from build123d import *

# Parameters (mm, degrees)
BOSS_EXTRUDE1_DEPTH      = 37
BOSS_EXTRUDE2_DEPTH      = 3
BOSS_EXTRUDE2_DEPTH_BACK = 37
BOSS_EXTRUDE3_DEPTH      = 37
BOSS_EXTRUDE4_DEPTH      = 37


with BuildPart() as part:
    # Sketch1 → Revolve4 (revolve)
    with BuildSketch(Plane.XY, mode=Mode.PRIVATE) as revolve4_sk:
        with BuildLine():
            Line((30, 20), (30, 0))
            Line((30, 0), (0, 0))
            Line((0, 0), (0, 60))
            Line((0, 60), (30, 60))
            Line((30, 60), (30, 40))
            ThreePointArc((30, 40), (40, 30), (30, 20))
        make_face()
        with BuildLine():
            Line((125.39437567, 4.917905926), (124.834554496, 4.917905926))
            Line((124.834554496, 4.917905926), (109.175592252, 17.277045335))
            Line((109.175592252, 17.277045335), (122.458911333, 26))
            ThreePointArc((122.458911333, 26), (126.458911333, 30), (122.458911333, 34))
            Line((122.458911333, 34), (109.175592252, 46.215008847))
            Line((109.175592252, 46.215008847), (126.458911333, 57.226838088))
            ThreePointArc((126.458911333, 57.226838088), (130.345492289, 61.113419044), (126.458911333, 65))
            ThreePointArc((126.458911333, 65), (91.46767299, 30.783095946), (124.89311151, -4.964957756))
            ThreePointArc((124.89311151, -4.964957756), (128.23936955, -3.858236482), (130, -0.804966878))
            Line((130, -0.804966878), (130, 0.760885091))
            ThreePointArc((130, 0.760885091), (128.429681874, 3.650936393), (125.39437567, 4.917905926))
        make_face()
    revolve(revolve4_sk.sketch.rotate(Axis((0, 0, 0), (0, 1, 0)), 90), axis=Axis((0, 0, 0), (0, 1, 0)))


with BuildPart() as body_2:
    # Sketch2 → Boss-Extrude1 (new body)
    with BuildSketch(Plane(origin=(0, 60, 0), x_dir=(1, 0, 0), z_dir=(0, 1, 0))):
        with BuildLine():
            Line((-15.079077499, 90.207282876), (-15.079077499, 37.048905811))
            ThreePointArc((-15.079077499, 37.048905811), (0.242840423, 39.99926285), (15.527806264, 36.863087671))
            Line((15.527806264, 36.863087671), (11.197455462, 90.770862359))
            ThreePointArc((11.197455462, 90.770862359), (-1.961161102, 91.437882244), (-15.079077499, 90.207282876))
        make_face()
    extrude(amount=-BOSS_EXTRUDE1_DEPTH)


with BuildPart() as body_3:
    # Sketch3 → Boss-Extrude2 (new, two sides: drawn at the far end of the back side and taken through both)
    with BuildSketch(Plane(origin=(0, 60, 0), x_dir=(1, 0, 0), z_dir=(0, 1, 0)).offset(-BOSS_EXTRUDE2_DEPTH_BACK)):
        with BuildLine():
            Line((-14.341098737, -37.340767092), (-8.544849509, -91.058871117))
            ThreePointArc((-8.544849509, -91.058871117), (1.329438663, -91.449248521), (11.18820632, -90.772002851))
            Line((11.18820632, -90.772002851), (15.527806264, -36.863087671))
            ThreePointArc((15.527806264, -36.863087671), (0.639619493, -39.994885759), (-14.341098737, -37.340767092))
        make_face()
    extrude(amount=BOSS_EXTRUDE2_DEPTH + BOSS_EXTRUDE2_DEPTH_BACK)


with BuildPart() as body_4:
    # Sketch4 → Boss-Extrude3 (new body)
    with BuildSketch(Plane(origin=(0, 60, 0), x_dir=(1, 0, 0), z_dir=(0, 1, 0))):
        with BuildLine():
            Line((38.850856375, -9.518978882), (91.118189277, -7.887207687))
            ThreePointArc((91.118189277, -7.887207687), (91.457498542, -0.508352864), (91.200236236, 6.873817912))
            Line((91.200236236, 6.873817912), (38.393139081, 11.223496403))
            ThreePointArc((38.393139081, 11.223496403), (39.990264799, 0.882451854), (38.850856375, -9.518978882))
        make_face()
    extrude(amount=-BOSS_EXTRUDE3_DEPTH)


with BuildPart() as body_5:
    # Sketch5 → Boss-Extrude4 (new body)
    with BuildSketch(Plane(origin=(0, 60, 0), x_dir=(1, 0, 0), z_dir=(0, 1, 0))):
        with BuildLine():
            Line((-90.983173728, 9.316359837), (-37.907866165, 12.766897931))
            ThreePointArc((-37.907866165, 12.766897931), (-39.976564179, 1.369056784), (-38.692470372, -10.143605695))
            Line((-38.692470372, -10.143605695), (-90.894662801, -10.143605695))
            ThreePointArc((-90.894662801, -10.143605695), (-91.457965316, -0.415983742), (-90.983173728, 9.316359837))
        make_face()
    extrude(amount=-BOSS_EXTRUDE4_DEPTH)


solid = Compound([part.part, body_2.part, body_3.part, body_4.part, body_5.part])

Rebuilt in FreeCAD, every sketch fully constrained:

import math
import FreeCAD as App
import Part
import Sketcher
Q = App.Units.Quantity

doc = App.newDocument("Part")
body = doc.addObject("PartDesign::Body", "Body")
body.AllowCompound = True

# Sketch on XY plane
sketch1 = doc.addObject("Sketcher::SketchObject", "Sketch")
body.addObject(sketch1)
sketch1.AttachmentSupport = (doc.XY_Plane, [""])
sketch1.MapMode = "FlatFace"
sketch1.addGeometry([
    Part.LineSegment(App.Vector(30, 0, 0), App.Vector(30, 20, 0)),  # 0
    Part.ArcOfCircle(Part.Circle(App.Vector(30, 30, 0), App.Vector(0, 0, 1), 10), math.radians(-90), math.radians(90)),  # 1
    Part.LineSegment(App.Vector(30, 40, 0), App.Vector(30, 60, 0)),  # 2
    Part.LineSegment(App.Vector(30, 60, 0), App.Vector(0, 60, 0)),  # 3
    Part.LineSegment(App.Vector(0, 60, 0), App.Vector(0, 0, 0)),  # 4
    Part.LineSegment(App.Vector(0, 0, 0), App.Vector(30, 0, 0)),  # 5
    Part.LineSegment(App.Vector(125.394376, 4.917906, 0), App.Vector(124.834554, 4.917906, 0)),  # 6
    Part.LineSegment(App.Vector(124.834554, 4.917906, 0), App.Vector(109.175592, 17.277045, 0)),  # 7
    Part.LineSegment(App.Vector(109.175592, 17.277045, 0), App.Vector(122.458911, 26, 0)),  # 8
    Part.ArcOfCircle(Part.Circle(App.Vector(122.458911, 30, 0), App.Vector(0, 0, 1), 4), math.radians(-90), math.radians(90)),  # 9
    Part.LineSegment(App.Vector(122.458911, 34, 0), App.Vector(109.175592, 46.215009, 0)),  # 10
    Part.LineSegment(App.Vector(109.175592, 46.215009, 0), App.Vector(126.458911, 57.226838, 0)),  # 11
    Part.ArcOfCircle(Part.Circle(App.Vector(126.458911, 61.113419, 0), App.Vector(0, 0, 1), 3.886581), math.radians(-90), math.radians(90)),  # 12
    Part.ArcOfCircle(Part.Circle(App.Vector(126.458911, 30, 0), App.Vector(0, 0, 1), 35), math.radians(90), math.radians(267.435895)),  # 13
    Part.ArcOfCircle(Part.Circle(App.Vector(125.114465, -0.022041, 0), App.Vector(0, 0, 1), 4.947871), math.radians(-92.564105), math.radians(-9.10446)),  # 14
    Part.LineSegment(App.Vector(130, -0.804967, 0), App.Vector(130, 0.760885, 0)),  # 15
    Part.ArcOfCircle(Part.Circle(App.Vector(125.114465, -0.022041, 0), App.Vector(0, 0, 1), 4.947871), math.radians(9.10446), math.radians(86.756936)),  # 16
], False)
sketch1.addConstraint([
    Sketcher.Constraint("Coincident", 0, 2, 1, 1),
    Sketcher.Constraint("Coincident", 1, 2, 2, 1),
    Sketcher.Constraint("Coincident", 2, 2, 3, 1),
    Sketcher.Constraint("Coincident", 3, 2, 4, 1),
    Sketcher.Constraint("Coincident", 4, 2, 5, 1),
    Sketcher.Constraint("Coincident", 5, 2, 0, 1),
    Sketcher.Constraint("Coincident", 6, 2, 7, 1),
    Sketcher.Constraint("Coincident", 7, 2, 8, 1),
    Sketcher.Constraint("Coincident", 8, 2, 9, 1),
    Sketcher.Constraint("Coincident", 9, 2, 10, 1),
    Sketcher.Constraint("Coincident", 10, 2, 11, 1),
    Sketcher.Constraint("Coincident", 11, 2, 12, 1),
    Sketcher.Constraint("Tangent", 12, 2, 13, 1),
    Sketcher.Constraint("Tangent", 13, 2, 14, 1),
    Sketcher.Constraint("Coincident", 14, 2, 15, 1),
    Sketcher.Constraint("Coincident", 15, 2, 16, 1),
    Sketcher.Constraint("Coincident", 16, 2, 6, 1),
    Sketcher.Constraint("Vertical", 0),
    Sketcher.Constraint("Vertical", 2),
    Sketcher.Constraint("Horizontal", 3),
    Sketcher.Constraint("Vertical", 4),
    Sketcher.Constraint("Horizontal", 5),
    Sketcher.Constraint("Horizontal", 6),
    Sketcher.Constraint("Vertical", 15),
    Sketcher.Constraint("Coincident", 4, 2, -1, 1),
    Sketcher.Constraint("Coincident", 16, 3, 14, 3),
    Sketcher.Constraint("Equal", 14, 16),
    Sketcher.Constraint("Horizontal", 1, 3, 9, 3),
    Sketcher.Constraint("Horizontal", 9, 3, 13, 3),
    Sketcher.Constraint("Vertical", 12, 3, 13, 3),
    Sketcher.Constraint("Vertical", 1, 3, 0, 2),
    Sketcher.Constraint("Vertical", 0, 2, 1, 2),
    Sketcher.Constraint("Vertical", 9, 3, 8, 2),
    Sketcher.Constraint("Vertical", 8, 2, 9, 2),
    Sketcher.Constraint("Vertical", 7, 2, 10, 2),
    Sketcher.Constraint("Vertical", 13, 3, 11, 2),
    Sketcher.Constraint("Equal", 0, 2),
    Sketcher.Constraint("Radius", 1, Q("10 mm")),
    Sketcher.Constraint("Radius", 9, Q("4 mm")),
    Sketcher.Constraint("Radius", 13, Q("35 mm")),
    Sketcher.Constraint("DistanceX", 3, 2, 3, 1, Q("30 mm")),
    Sketcher.Constraint("DistanceY", 0, 1, 0, 2, Q("20 mm")),
    Sketcher.Constraint("DistanceX", -1, 1, 14, 2, Q("130 mm")),
    Sketcher.Constraint("DistanceX", 9, 3, 12, 3, Q("4 mm")),
    Sketcher.Constraint("Radius", 12, Q("3.886581 mm")),
    Sketcher.Constraint("Radius", 14, Q("4.947871 mm")),
    Sketcher.Constraint("DistanceX", 6, 2, 6, 1, Q("0.559821 mm")),
    Sketcher.Constraint("DistanceY", 15, 1, 15, 2, Q("1.565852 mm")),
    Sketcher.Constraint("DistanceX", 8, 2, 13, 2, Q("2.4342 mm")),
    Sketcher.Constraint("Distance", 7, Q("19.94872 mm")),
    Sketcher.Constraint("Distance", 10, Q("18.045858 mm")),
    Sketcher.Constraint("DistanceY", -1, 1, 10, 2, Q("46.215009 mm")),
    Sketcher.Constraint("DistanceX", 6, 2, 16, 3, Q("0.279911 mm")),
])
revolution = doc.addObject("PartDesign::Revolution", "Revolution")
body.addObject(revolution)
revolution.Profile = sketch1
revolution.ReferenceAxis = (sketch1, ["V_Axis"])
revolution.Angle = 360
body2 = doc.addObject("PartDesign::Body", "Body001")

# Sketch on XZ plane
sketch2 = doc.addObject("Sketcher::SketchObject", "Sketch001")
body2.addObject(sketch2)
sketch2.AttachmentSupport = (doc.getObject("XZ_Plane001"), [""])
sketch2.MapMode = "FlatFace"
sketch2.AttachmentOffset = App.Placement(App.Vector(0, 0, -60), App.Rotation())
sketch2.addGeometry([
    Part.LineSegment(App.Vector(-15.079077, -90.207283, 0), App.Vector(-15.079077, -37.048906, 0)),
    Part.ArcOfCircle(Part.Circle(App.Vector(0, 0, 0), App.Vector(0, 0, 1), 40), math.radians(-112.146552), math.radians(-67.157757)),
    Part.LineSegment(App.Vector(15.527806, -36.863088, 0), App.Vector(11.197455, -90.770862, 0)),
    Part.ArcOfCircle(Part.Circle(App.Vector(0, 0, 0), App.Vector(0, 0, 1), 91.458911), math.radians(-99.489839), math.radians(-82.967545)),
], False)
sketch2.addConstraint([
    Sketcher.Constraint("Coincident", 0, 2, 1, 1),
    Sketcher.Constraint("Coincident", 1, 2, 2, 1),
    Sketcher.Constraint("Coincident", 2, 2, 3, 2),
    Sketcher.Constraint("Coincident", 3, 1, 0, 1),
    Sketcher.Constraint("Vertical", 0),
    Sketcher.Constraint("Coincident", 1, 3, -1, 1),
    Sketcher.Constraint("Coincident", 3, 3, -1, 1),
    Sketcher.Constraint("Radius", 1, Q("40 mm")),
    Sketcher.Constraint("Radius", 3, Q("91.458911 mm")),
    Sketcher.Constraint("Distance", 2, Q("54.081421 mm")),
    Sketcher.Constraint("DistanceY", 0, 1, 0, 2, Q("53.158377 mm")),
    Sketcher.Constraint("DistanceY", 0, 2, 1, 2, Q("0.185818 mm")),
])
pad1 = doc.addObject("PartDesign::Pad", "Pad")
body2.addObject(pad1)
pad1.Profile = sketch2
pad1.Length = 37
body3 = doc.addObject("PartDesign::Body", "Body002")

# Sketch on XZ plane
sketch3 = doc.addObject("Sketcher::SketchObject", "Sketch002")
body3.addObject(sketch3)
sketch3.AttachmentSupport = (doc.getObject("XZ_Plane002"), [""])
sketch3.MapMode = "FlatFace"
sketch3.AttachmentOffset = App.Placement(App.Vector(0, 0, -60), App.Rotation())
sketch3.addGeometry([
    Part.LineSegment(App.Vector(-14.341099, 37.340767, 0), App.Vector(-8.54485, 91.058871, 0)),
    Part.ArcOfCircle(Part.Circle(App.Vector(0, 0, 0), App.Vector(0, 0, 1), 91.458911), math.radians(82.973384), math.radians(95.360865)),
    Part.LineSegment(App.Vector(11.188206, 90.772003, 0), App.Vector(15.527806, 36.863088, 0)),
    Part.ArcOfCircle(Part.Circle(App.Vector(0, 0, 0), App.Vector(0, 0, 1), 40), math.radians(67.157757), math.radians(111.00979)),
], False)
sketch3.addConstraint([
    Sketcher.Constraint("Coincident", 0, 2, 1, 2),
    Sketcher.Constraint("Coincident", 1, 1, 2, 1),
    Sketcher.Constraint("Coincident", 2, 2, 3, 1),
    Sketcher.Constraint("Coincident", 3, 2, 0, 1),
    Sketcher.Constraint("Coincident", 1, 3, -1, 1),
    Sketcher.Constraint("Coincident", 3, 3, -1, 1),
    Sketcher.Constraint("Radius", 3, Q("40 mm")),
    Sketcher.Constraint("Radius", 1, Q("91.458911 mm")),
    Sketcher.Constraint("Distance", 2, Q("54.083299 mm")),
    Sketcher.Constraint("DistanceX", 3, 2, -1, 1, Q("14.341099 mm")),
    Sketcher.Constraint("DistanceX", 1, 1, 2, 2, Q("4.3396 mm")),
    Sketcher.Constraint("Distance", 0, Q("54.02991 mm")),
])
pad2 = doc.addObject("PartDesign::Pad", "Pad001")
body3.addObject(pad2)
pad2.Profile = sketch3
pad2.Type = "TwoLengths"
pad2.Length = 3
pad2.Length2 = 37
pad2.Reversed = True
body4 = doc.addObject("PartDesign::Body", "Body003")

# Sketch on XZ plane
sketch4 = doc.addObject("Sketcher::SketchObject", "Sketch003")
body4.addObject(sketch4)
sketch4.AttachmentSupport = (doc.getObject("XZ_Plane003"), [""])
sketch4.MapMode = "FlatFace"
sketch4.AttachmentOffset = App.Placement(App.Vector(0, 0, -60), App.Rotation())
sketch4.addGeometry([
    Part.LineSegment(App.Vector(38.850856, 9.518979, 0), App.Vector(91.118189, 7.887208, 0)),
    Part.ArcOfCircle(Part.Circle(App.Vector(0, 0, 0), App.Vector(0, 0, 1), 91.458911), math.radians(-4.310269), math.radians(4.947202)),
    Part.LineSegment(App.Vector(91.200236, -6.873818, 0), App.Vector(38.393139, -11.223496, 0)),
    Part.ArcOfCircle(Part.Circle(App.Vector(0, 0, 0), App.Vector(0, 0, 1), 40), math.radians(-16.295266), math.radians(13.767023)),
], False)
sketch4.addConstraint([
    Sketcher.Constraint("Coincident", 0, 2, 1, 2),
    Sketcher.Constraint("Coincident", 1, 1, 2, 1),
    Sketcher.Constraint("Coincident", 2, 2, 3, 1),
    Sketcher.Constraint("Coincident", 3, 2, 0, 1),
    Sketcher.Constraint("Coincident", 1, 3, -1, 1),
    Sketcher.Constraint("Coincident", 3, 3, -1, 1),
    Sketcher.Constraint("Radius", 3, Q("40 mm")),
    Sketcher.Constraint("Radius", 1, Q("91.458911 mm")),
    Sketcher.Constraint("Distance", 0, Q("52.292798 mm")),
    Sketcher.Constraint("DistanceX", -1, 1, 0, 2, Q("91.118189 mm")),
    Sketcher.Constraint("DistanceX", -1, 1, 2, 2, Q("38.393139 mm")),
    Sketcher.Constraint("DistanceY", 2, 2, 1, 1, Q("4.349678 mm")),
])
pad3 = doc.addObject("PartDesign::Pad", "Pad002")
body4.addObject(pad3)
pad3.Profile = sketch4
pad3.Length = 37
body5 = doc.addObject("PartDesign::Body", "Body004")

# Sketch on XZ plane
sketch5 = doc.addObject("Sketcher::SketchObject", "Sketch004")
body5.addObject(sketch5)
sketch5.AttachmentSupport = (doc.getObject("XZ_Plane004"), [""])
sketch5.MapMode = "FlatFace"
sketch5.AttachmentOffset = App.Placement(App.Vector(0, 0, -60), App.Rotation())
sketch5.addGeometry([
    Part.LineSegment(App.Vector(-37.907866, -12.766898, 0), App.Vector(-90.983174, -9.31636, 0)),
    Part.ArcOfCircle(Part.Circle(App.Vector(0, 0, 0), App.Vector(0, 0, 1), 91.458911), math.radians(173.632289), math.radians(185.846511)),
    Part.LineSegment(App.Vector(-90.894663, 10.143606, 0), App.Vector(-38.69247, 10.143606, 0)),
    Part.ArcOfCircle(Part.Circle(App.Vector(0, 0, 0), App.Vector(0, 0, 1), 40), math.radians(165.309939), math.radians(198.612885)),
], False)
sketch5.addConstraint([
    Sketcher.Constraint("Coincident", 0, 2, 1, 2),
    Sketcher.Constraint("Coincident", 1, 1, 2, 1),
    Sketcher.Constraint("Coincident", 2, 2, 3, 1),
    Sketcher.Constraint("Coincident", 3, 2, 0, 1),
    Sketcher.Constraint("Horizontal", 2),
    Sketcher.Constraint("Coincident", 1, 3, -1, 1),
    Sketcher.Constraint("Coincident", 3, 3, -1, 1),
    Sketcher.Constraint("Radius", 3, Q("40 mm")),
    Sketcher.Constraint("Radius", 1, Q("91.458911 mm")),
    Sketcher.Constraint("DistanceX", 2, 1, 2, 2, Q("52.202192 mm")),
    Sketcher.Constraint("DistanceY", 0, 2, -1, 1, Q("9.31636 mm")),
    Sketcher.Constraint("DistanceY", 3, 2, 0, 2, Q("3.450538 mm")),
])
pad4 = doc.addObject("PartDesign::Pad", "Pad003")
body5.addObject(pad4)
pad4.Profile = sketch5
pad4.Length = 37

doc.recompute()
